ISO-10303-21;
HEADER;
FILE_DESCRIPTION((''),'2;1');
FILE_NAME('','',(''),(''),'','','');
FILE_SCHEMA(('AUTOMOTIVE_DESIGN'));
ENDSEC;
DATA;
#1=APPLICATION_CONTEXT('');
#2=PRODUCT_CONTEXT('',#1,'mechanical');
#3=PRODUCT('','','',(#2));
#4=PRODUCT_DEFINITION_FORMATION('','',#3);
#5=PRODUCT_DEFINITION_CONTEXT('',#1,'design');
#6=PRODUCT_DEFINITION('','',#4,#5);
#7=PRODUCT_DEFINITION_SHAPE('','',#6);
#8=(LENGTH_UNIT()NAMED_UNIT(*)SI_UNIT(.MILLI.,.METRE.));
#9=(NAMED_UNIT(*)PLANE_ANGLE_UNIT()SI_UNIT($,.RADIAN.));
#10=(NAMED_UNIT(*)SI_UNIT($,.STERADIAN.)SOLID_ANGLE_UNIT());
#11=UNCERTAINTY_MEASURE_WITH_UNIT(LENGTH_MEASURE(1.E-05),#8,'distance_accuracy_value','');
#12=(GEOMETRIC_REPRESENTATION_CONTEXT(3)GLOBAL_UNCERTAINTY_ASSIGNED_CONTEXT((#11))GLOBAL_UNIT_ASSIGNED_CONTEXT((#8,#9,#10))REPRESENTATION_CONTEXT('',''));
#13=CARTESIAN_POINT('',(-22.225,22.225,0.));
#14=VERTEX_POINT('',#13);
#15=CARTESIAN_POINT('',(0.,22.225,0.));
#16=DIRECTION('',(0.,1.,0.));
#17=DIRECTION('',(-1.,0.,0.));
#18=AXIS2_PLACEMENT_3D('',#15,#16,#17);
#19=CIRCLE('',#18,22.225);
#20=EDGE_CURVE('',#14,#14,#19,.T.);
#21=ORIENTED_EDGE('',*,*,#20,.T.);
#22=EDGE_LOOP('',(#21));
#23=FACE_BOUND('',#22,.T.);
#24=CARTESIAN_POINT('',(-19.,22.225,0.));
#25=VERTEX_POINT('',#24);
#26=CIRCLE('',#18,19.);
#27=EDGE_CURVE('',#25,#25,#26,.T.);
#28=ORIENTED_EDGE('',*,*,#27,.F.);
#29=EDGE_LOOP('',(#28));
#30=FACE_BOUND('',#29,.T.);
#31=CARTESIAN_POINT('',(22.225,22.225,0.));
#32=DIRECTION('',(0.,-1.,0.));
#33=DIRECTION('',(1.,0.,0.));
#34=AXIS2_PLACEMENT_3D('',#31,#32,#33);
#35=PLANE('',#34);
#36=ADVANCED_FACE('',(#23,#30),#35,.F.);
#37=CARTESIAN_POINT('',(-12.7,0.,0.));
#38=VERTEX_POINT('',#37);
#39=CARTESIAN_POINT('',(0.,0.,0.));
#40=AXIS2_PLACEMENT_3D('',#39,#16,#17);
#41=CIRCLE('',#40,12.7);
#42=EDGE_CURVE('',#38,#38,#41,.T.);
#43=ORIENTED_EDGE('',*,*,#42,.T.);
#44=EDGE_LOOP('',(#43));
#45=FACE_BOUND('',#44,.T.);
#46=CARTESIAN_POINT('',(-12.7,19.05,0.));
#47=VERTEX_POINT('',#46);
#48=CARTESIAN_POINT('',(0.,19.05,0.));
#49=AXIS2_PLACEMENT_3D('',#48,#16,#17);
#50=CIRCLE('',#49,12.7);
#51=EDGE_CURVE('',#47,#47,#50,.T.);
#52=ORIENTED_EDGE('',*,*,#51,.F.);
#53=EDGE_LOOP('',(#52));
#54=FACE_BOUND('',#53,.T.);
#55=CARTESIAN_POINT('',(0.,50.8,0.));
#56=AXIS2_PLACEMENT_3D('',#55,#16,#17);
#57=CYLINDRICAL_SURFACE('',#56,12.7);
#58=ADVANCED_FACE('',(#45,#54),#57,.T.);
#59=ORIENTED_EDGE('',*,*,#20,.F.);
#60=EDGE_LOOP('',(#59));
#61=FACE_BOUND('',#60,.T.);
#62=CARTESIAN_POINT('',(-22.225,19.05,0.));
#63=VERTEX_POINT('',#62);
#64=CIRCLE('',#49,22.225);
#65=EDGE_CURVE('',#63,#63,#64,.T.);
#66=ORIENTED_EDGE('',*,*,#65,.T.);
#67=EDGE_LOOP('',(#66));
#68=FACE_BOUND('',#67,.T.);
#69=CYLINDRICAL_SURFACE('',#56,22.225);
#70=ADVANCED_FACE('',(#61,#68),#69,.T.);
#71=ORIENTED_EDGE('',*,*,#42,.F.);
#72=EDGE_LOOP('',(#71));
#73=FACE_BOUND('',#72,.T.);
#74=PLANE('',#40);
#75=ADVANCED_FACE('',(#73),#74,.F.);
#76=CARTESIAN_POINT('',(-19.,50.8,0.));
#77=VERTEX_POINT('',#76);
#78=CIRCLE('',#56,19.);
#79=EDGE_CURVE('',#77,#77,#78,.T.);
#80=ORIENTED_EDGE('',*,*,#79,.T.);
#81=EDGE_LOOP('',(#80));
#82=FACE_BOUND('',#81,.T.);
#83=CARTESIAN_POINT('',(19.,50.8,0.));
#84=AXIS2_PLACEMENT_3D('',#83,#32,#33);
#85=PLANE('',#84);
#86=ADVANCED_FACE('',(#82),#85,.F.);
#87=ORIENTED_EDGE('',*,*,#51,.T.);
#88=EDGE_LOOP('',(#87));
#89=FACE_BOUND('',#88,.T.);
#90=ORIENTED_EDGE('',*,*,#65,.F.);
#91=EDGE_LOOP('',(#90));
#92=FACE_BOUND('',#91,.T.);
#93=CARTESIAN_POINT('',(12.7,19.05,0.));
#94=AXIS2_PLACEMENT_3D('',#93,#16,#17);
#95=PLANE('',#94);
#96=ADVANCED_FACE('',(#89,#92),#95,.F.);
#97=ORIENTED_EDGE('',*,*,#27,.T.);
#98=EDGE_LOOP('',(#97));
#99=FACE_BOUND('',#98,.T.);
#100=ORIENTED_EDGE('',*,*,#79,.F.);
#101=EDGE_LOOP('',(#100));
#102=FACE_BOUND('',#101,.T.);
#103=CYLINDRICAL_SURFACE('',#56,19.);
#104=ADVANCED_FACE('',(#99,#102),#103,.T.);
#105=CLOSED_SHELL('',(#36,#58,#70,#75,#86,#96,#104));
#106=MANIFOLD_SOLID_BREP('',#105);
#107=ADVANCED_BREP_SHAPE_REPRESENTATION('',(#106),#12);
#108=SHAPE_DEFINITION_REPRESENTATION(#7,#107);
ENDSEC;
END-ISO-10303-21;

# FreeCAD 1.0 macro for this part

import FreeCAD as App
import Part
import Sketcher

V = App.Vector
Q = App.Units.Quantity

doc = App.newDocument("Part")
params = doc.addObject("Spreadsheet::Sheet", "Params")
for row, (alias, value) in enumerate([
    ("sketch1_height", "2 in"),
    ("sketch1_width", "0.5 in"),
    ("sketch1_height2", "0.75 in"),
    ("sketch1_width2", "0.375 in"),
    ("sketch1_height3", "0.125 in"),
    ("revolution_angle", "360 deg"),
], start=1):
    params.set(f"A{row}", alias)
    params.set(f"B{row}", "=" + value)
    params.setAlias(f"B{row}", alias)

body = doc.addObject("PartDesign::Body", "Body")

# Sketch on XY plane
sketch1 = doc.addObject("Sketcher::SketchObject", "Sketch")
body.addObject(sketch1)
sketch1.AttachmentSupport = (doc.XY_Plane, [""])
sketch1.MapMode = "FlatFace"
sketch1.addGeometry(Part.LineSegment(V(0, 0, 0), V(12.7, 0, 0)), False)
sketch1.addGeometry(Part.LineSegment(V(12.7, 0, 0), V(12.7, 19.1, 0)), False)
sketch1.addGeometry(Part.LineSegment(V(12.7, 19.1, 0), V(22.2, 19.1, 0)), False)
sketch1.addGeometry(Part.LineSegment(V(22.2, 19.1, 0), V(22.2, 22.2, 0)), False)
sketch1.addGeometry(Part.LineSegment(V(22.2, 22.2, 0), V(19, 22.2, 0)), False)
sketch1.addGeometry(Part.LineSegment(V(19, 22.2, 0), V(19, 50.8, 0)), False)
sketch1.addGeometry(Part.LineSegment(V(19, 50.8, 0), V(0, 50.8, 0)), False)
sketch1.addGeometry(Part.LineSegment(V(0, 50.8, 0), V(0, 0, 0)), False)
sketch1.addConstraint(Sketcher.Constraint("Coincident", 0, 2, 1, 1))
sketch1.addConstraint(Sketcher.Constraint("Coincident", 1, 2, 2, 1))
sketch1.addConstraint(Sketcher.Constraint("Coincident", 2, 2, 3, 1))
sketch1.addConstraint(Sketcher.Constraint("Coincident", 3, 2, 4, 1))
sketch1.addConstraint(Sketcher.Constraint("Coincident", 4, 2, 5, 1))
sketch1.addConstraint(Sketcher.Constraint("Coincident", 5, 2, 6, 1))
sketch1.addConstraint(Sketcher.Constraint("Coincident", 6, 2, 7, 1))
sketch1.addConstraint(Sketcher.Constraint("Coincident", 7, 2, 0, 1))
sketch1.addConstraint(Sketcher.Constraint("Horizontal", 0))
sketch1.addConstraint(Sketcher.Constraint("Vertical", 1))
sketch1.addConstraint(Sketcher.Constraint("Horizontal", 2))
sketch1.addConstraint(Sketcher.Constraint("Vertical", 3))
sketch1.addConstraint(Sketcher.Constraint("Horizontal", 4))
sketch1.addConstraint(Sketcher.Constraint("Vertical", 5))
sketch1.addConstraint(Sketcher.Constraint("Horizontal", 6))
sketch1.addConstraint(Sketcher.Constraint("Vertical", 7))
sketch1.addConstraint(Sketcher.Constraint("Coincident", 7, 2, -1, 1))
sketch1.addConstraint(Sketcher.Constraint("DistanceY", 7, 2, 7, 1, Q("2 in")))
sketch1.addConstraint(Sketcher.Constraint("DistanceX", 0, 1, 0, 2, Q("0.5 in")))
sketch1.addConstraint(Sketcher.Constraint("DistanceY", 1, 1, 1, 2, Q("0.75 in")))
sketch1.addConstraint(Sketcher.Constraint("DistanceX", 2, 1, 2, 2, Q("0.375 in")))
sketch1.addConstraint(Sketcher.Constraint("DistanceY", 3, 1, 3, 2, Q("0.125 in")))
sketch1.addConstraint(Sketcher.Constraint("DistanceX", 4, 2, 4, 1, 3.225))
sketch1.setExpression("Constraints[17]", "Params.sketch1_height")
sketch1.setExpression("Constraints[18]", "Params.sketch1_width")
sketch1.setExpression("Constraints[19]", "Params.sketch1_height2")
sketch1.setExpression("Constraints[20]", "Params.sketch1_width2")
sketch1.setExpression("Constraints[21]", "Params.sketch1_height3")
revolution = doc.addObject("PartDesign::Revolution", "Revolution")
body.addObject(revolution)
revolution.Profile = sketch1
revolution.ReferenceAxis = (sketch1, ["V_Axis"])
revolution.setExpression("Angle", "Params.revolution_angle")

doc.recompute()
